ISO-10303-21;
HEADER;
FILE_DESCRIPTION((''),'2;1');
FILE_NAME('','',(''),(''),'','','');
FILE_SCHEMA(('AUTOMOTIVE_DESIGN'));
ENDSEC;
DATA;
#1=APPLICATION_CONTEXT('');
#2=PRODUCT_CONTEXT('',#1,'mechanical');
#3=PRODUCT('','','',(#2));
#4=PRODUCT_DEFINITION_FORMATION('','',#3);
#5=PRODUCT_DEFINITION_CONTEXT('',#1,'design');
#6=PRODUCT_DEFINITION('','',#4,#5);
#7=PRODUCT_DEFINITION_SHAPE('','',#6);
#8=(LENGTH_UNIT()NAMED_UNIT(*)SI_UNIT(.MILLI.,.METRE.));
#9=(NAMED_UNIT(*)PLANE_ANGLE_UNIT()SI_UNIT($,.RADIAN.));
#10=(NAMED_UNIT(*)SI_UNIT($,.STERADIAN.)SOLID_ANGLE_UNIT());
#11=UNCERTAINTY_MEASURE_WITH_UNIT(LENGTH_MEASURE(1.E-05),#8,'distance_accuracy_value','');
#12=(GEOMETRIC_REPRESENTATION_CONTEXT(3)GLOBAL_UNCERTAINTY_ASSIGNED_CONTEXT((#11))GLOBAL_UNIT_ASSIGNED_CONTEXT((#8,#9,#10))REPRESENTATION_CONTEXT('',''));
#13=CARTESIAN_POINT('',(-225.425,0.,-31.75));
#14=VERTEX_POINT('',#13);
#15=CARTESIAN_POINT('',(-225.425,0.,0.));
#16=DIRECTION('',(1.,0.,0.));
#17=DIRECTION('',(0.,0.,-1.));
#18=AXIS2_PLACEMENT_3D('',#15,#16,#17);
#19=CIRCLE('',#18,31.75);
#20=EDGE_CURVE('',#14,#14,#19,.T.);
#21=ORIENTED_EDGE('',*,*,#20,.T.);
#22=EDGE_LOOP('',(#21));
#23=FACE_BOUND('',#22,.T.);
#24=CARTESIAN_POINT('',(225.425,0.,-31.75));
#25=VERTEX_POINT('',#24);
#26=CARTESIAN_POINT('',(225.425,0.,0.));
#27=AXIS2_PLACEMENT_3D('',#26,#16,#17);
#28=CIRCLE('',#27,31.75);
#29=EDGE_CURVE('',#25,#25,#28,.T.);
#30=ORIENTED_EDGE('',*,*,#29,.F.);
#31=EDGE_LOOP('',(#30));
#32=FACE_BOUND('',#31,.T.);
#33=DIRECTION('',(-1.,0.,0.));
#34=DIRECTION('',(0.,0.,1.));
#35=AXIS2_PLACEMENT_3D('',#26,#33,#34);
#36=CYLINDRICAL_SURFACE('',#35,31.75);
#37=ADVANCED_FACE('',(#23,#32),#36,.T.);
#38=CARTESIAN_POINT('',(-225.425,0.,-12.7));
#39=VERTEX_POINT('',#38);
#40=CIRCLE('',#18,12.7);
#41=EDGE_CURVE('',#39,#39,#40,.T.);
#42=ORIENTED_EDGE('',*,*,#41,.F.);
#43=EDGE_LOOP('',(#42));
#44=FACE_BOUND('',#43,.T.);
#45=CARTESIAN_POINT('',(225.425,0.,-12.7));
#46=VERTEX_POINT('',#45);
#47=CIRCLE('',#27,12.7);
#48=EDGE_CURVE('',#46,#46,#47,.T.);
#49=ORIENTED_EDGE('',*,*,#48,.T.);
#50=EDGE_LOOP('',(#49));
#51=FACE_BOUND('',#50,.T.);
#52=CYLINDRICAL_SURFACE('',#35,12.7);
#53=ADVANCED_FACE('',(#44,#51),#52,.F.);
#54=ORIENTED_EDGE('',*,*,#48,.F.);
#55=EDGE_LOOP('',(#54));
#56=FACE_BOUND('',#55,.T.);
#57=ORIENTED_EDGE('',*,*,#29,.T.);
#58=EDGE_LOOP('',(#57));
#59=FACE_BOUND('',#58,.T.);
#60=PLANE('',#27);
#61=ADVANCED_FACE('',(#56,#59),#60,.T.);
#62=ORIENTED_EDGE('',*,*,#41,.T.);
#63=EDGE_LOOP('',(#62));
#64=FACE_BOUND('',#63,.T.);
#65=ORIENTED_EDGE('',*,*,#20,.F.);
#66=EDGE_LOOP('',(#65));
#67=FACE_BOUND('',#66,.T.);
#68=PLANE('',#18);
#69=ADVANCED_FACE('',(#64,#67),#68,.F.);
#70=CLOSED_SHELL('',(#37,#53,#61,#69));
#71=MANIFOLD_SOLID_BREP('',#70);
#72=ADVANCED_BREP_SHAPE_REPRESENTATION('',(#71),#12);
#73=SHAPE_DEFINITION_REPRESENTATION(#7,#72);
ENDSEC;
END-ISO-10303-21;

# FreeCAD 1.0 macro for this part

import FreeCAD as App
import Part
import Sketcher
Q = App.Units.Quantity

doc = App.newDocument("Part")
params = doc.addObject("Spreadsheet::Sheet", "Params")
for row, (alias, value) in enumerate([
    ("sketch1_diameter", "1 in"),
    ("sketch1_diameter2", "2.5 in"),
    ("pad1_length", "17.75 in"),
], start=1):
    params.set(f"A{row}", alias)
    params.set(f"B{row}", "=" + value)
    params.setAlias(f"B{row}", alias)

body = doc.addObject("PartDesign::Body", "Body")

sketch1 = body.newObject("Sketcher::SketchObject", "Sketch")
sketch1.AttachmentSupport = (doc.getObject("YZ_Plane"), [""])
sketch1.MapMode = "FlatFace"
sketch1.addGeometry([
    Part.Circle(App.Vector(0, 0, 0), App.Vector(0, 0, 1), 32),
    Part.Circle(App.Vector(0, 0, 0), App.Vector(0, 0, 1), 13),
], False)
sketch1.addConstraint([
    Sketcher.Constraint("Coincident", 0, 3, -1, 1),
    Sketcher.Constraint("Coincident", 1, 3, -1, 1),
    Sketcher.Constraint("Diameter", 1, Q("1 in")),
    Sketcher.Constraint("Diameter", 0, Q("2.5 in")),
])
sketch1.setExpression("Constraints[2]", "Params.sketch1_diameter")
sketch1.setExpression("Constraints[3]", "Params.sketch1_diameter2")
pad1 = body.newObject("PartDesign::Pad", "Pad")
pad1.Profile = sketch1
pad1.setExpression("Length", "Params.pad1_length")
pad1.Midplane = True

doc.recompute()
